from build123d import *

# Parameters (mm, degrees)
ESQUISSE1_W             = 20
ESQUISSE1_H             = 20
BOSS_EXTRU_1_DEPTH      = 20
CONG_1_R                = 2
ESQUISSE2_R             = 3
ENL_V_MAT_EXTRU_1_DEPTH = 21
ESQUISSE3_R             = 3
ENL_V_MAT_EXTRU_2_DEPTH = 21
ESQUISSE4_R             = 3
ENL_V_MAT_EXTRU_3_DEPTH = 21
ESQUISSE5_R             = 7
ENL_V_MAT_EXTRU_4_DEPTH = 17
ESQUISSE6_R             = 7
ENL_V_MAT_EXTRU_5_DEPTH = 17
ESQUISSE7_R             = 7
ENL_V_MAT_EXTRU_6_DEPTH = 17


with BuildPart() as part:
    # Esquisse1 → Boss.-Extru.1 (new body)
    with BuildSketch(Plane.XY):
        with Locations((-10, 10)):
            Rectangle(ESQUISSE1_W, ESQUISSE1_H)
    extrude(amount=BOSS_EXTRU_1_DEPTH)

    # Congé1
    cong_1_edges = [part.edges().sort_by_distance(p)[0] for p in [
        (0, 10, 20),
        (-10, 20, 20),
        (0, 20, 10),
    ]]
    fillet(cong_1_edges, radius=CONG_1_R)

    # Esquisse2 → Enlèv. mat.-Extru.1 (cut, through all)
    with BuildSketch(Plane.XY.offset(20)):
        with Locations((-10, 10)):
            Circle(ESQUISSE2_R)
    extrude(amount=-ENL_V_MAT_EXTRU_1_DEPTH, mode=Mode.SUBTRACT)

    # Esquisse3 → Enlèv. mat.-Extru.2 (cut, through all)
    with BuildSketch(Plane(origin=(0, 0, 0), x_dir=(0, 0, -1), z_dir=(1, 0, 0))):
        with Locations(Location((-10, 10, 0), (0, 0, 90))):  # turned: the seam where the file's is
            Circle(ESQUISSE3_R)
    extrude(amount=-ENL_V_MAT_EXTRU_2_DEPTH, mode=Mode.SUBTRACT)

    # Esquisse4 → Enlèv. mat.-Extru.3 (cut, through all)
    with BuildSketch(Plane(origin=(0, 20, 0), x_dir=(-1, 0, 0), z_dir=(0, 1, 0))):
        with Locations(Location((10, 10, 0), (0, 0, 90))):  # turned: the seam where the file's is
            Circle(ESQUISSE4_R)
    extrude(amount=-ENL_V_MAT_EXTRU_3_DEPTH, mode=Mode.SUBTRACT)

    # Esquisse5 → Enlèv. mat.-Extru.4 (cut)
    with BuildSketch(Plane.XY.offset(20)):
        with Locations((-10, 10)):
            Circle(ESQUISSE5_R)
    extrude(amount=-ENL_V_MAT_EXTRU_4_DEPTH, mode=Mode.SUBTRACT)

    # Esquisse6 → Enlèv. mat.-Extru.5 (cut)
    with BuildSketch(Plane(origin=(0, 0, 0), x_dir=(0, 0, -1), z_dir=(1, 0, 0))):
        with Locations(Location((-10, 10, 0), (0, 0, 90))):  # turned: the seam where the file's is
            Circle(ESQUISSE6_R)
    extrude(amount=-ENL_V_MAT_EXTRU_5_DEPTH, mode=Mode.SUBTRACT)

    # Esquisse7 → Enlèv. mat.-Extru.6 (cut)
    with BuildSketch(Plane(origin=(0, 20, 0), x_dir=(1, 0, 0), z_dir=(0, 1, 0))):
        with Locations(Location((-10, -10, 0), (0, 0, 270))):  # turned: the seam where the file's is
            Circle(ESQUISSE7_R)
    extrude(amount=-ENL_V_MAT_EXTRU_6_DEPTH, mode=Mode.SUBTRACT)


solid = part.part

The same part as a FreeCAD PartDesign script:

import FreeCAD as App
import Part
import Sketcher
from FreeCAD import Vector


def edges_at(feature, points):
    """Names of the edges that pass closest to the given points."""
    edges = feature.Shape.Edges
    near = lambda p: min(range(len(edges)), key=lambda i: edges[i].distToShape(Part.Vertex(*p))[0])
    return sorted({f"Edge{near(p) + 1}" for p in points})


def add_polygon(sketch, points):
    """Adds a closed chain of lines whose ends are joined by coincident constraints."""
    first, n = sketch.GeometryCount, len(points)
    for a, b in zip(points, points[1:] + points[:1]):
        sketch.addGeometry(Part.LineSegment(App.Vector(*a, 0), App.Vector(*b, 0)), False)
    for i in range(n):
        sketch.addConstraint(Sketcher.Constraint("Coincident", first + i, 2, first + (i + 1) % n, 1))

doc = App.newDocument("Part")
body = doc.addObject("PartDesign::Body", "Body")

sketch1 = body.newObject("Sketcher::SketchObject", "Sketch")
sketch1.AttachmentSupport = (doc.getObject("XY_Plane"), [""])
sketch1.MapMode = "FlatFace"
add_polygon(sketch1, [(-20, 20), (-20, 0), (0, 0), (0, 20)])
sketch1.addConstraint(Sketcher.Constraint("Vertical", 0))
sketch1.addConstraint(Sketcher.Constraint("Horizontal", 1))
sketch1.addConstraint(Sketcher.Constraint("Vertical", 2))
sketch1.addConstraint(Sketcher.Constraint("Horizontal", 3))
sketch1.addConstraint(Sketcher.Constraint("Coincident", 1, 2, -1, 1))
sketch1.addConstraint(Sketcher.Constraint("Equal", 3, 0))
sketch1.addConstraint(Sketcher.Constraint("DistanceX", 1, 1, 1, 2, 20.0))
pad1 = body.newObject("PartDesign::Pad", "Pad")
pad1.Profile = sketch1
pad1.Length = 20
doc.recompute()

fillet = body.newObject("PartDesign::Fillet", "Fillet")
fillet.Base = (pad1, edges_at(pad1, [(0, 10, 20), (-10, 20, 20), (0, 20, 10)]))
fillet.Radius = 2

sketch2 = body.newObject("Sketcher::SketchObject", "Sketch001")
sketch2.AttachmentSupport = (doc.getObject("XY_Plane"), [""])
sketch2.MapMode = "FlatFace"
sketch2.AttachmentOffset = App.Placement(Vector(0, 0, 20), App.Rotation())
sketch2.addGeometry(Part.Circle(Vector(-10, 10, 0), Vector(0, 0, 1), 3), False)
sketch2.addConstraint(Sketcher.Constraint("Diameter", 0, 6.0))
sketch2.addConstraint(Sketcher.Constraint("DistanceX", 0, 3, -1, 1, 10.0))
sketch2.addConstraint(Sketcher.Constraint("DistanceY", -1, 1, 0, 3, 10.0))
pocket1 = body.newObject("PartDesign::Pocket", "Pocket")
pocket1.Profile = sketch2
pocket1.Type = "ThroughAll"

sketch3 = body.newObject("Sketcher::SketchObject", "Sketch002")
sketch3.AttachmentSupport = (doc.getObject("YZ_Plane"), [""])
sketch3.MapMode = "FlatFace"
sketch3.addGeometry(Part.Circle(Vector(10, 10, 0), Vector(0, 0, 1), 3), False)
sketch3.addConstraint(Sketcher.Constraint("Diameter", 0, 6.0))
sketch3.addConstraint(Sketcher.Constraint("DistanceX", -1, 1, 0, 3, 10.0))
sketch3.addConstraint(Sketcher.Constraint("DistanceY", -1, 1, 0, 3, 10.0))
pocket2 = body.newObject("PartDesign::Pocket", "Pocket001")
pocket2.Profile = sketch3
pocket2.Type = "ThroughAll"

sketch4 = body.newObject("Sketcher::SketchObject", "Sketch003")
sketch4.AttachmentSupport = (doc.getObject("XZ_Plane"), [""])
sketch4.MapMode = "FlatFace"
sketch4.AttachmentOffset = App.Placement(Vector(0, 0, -20), App.Rotation())
sketch4.addGeometry(Part.Circle(Vector(-10, 10, 0), Vector(0, 0, 1), 3), False)
sketch4.addConstraint(Sketcher.Constraint("Diameter", 0, 6.0))
sketch4.addConstraint(Sketcher.Constraint("DistanceX", 0, 3, -1, 1, 10.0))
sketch4.addConstraint(Sketcher.Constraint("DistanceY", -1, 1, 0, 3, 10.0))
pocket3 = body.newObject("PartDesign::Pocket", "Pocket002")
pocket3.Profile = sketch4
pocket3.Type = "ThroughAll"
pocket3.Reversed = True

sketch5 = body.newObject("Sketcher::SketchObject", "Sketch004")
sketch5.AttachmentSupport = (doc.getObject("XY_Plane"), [""])
sketch5.MapMode = "FlatFace"
sketch5.AttachmentOffset = App.Placement(Vector(0, 0, 20), App.Rotation())
sketch5.addGeometry(Part.Circle(Vector(-10, 10, 0), Vector(0, 0, 1), 7), False)
sketch5.addConstraint(Sketcher.Constraint("Diameter", 0, 14.0))
sketch5.addConstraint(Sketcher.Constraint("DistanceX", 0, 3, -1, 1, 10.0))
sketch5.addConstraint(Sketcher.Constraint("DistanceY", -1, 1, 0, 3, 10.0))
pocket4 = body.newObject("PartDesign::Pocket", "Pocket003")
pocket4.Profile = sketch5
pocket4.Length = 17

sketch6 = body.newObject("Sketcher::SketchObject", "Sketch005")
sketch6.AttachmentSupport = (doc.getObject("YZ_Plane"), [""])
sketch6.MapMode = "FlatFace"
sketch6.addGeometry(Part.Circle(Vector(10, 10, 0), Vector(0, 0, 1), 7), False)
sketch6.addConstraint(Sketcher.Constraint("Diameter", 0, 14.0))
sketch6.addConstraint(Sketcher.Constraint("DistanceX", -1, 1, 0, 3, 10.0))
sketch6.addConstraint(Sketcher.Constraint("DistanceY", -1, 1, 0, 3, 10.0))
pocket5 = body.newObject("PartDesign::Pocket", "Pocket004")
pocket5.Profile = sketch6
pocket5.Length = 17

sketch7 = body.newObject("Sketcher::SketchObject", "Sketch006")
sketch7.AttachmentSupport = (doc.getObject("XZ_Plane"), [""])
sketch7.MapMode = "FlatFace"
sketch7.AttachmentOffset = App.Placement(Vector(0, 0, -20), App.Rotation())
sketch7.addGeometry(Part.Circle(Vector(-10, 10, 0), Vector(0, 0, 1), 7), False)
sketch7.addConstraint(Sketcher.Constraint("Diameter", 0, 14.0))
sketch7.addConstraint(Sketcher.Constraint("DistanceX", 0, 3, -1, 1, 10.0))
sketch7.addConstraint(Sketcher.Constraint("DistanceY", -1, 1, 0, 3, 10.0))
pocket6 = body.newObject("PartDesign::Pocket", "Pocket005")
pocket6.Profile = sketch7
pocket6.Length = 17
pocket6.Reversed = True

doc.recompute()
